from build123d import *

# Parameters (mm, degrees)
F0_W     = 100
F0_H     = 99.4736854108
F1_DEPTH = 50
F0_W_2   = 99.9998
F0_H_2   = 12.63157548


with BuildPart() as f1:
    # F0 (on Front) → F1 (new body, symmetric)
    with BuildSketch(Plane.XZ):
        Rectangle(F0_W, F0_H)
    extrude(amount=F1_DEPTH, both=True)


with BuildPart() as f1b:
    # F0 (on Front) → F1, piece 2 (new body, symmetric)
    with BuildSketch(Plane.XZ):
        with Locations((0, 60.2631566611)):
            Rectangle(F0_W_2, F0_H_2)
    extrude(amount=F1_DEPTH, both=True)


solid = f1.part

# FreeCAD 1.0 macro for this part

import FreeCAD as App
import Part
import Sketcher

V = App.Vector
Q = App.Units.Quantity

doc = App.newDocument("Part")
body = doc.addObject("PartDesign::Body", "Body")

sketch1 = body.newObject("Sketcher::SketchObject", "Sketch")
sketch1.AttachmentSupport = (doc.getObject("XZ_Plane"), [""])
sketch1.MapMode = "FlatFace"
sketch1.addGeometry(Part.LineSegment(V(-50, 50, 0), V(-50, -50, 0)), False)
sketch1.addGeometry(Part.LineSegment(V(-50, -50, 0), V(50, -50, 0)), False)
sketch1.addGeometry(Part.LineSegment(V(50, -50, 0), V(50, 50, 0)), False)
sketch1.addGeometry(Part.LineSegment(V(50, 50, 0), V(-50, 50, 0)), False)
sketch1.addConstraint(Sketcher.Constraint("Coincident", 0, 2, 1, 1))
sketch1.addConstraint(Sketcher.Constraint("Coincident", 1, 2, 2, 1))
sketch1.addConstraint(Sketcher.Constraint("Coincident", 2, 2, 3, 1))
sketch1.addConstraint(Sketcher.Constraint("Coincident", 3, 2, 0, 1))
sketch1.addConstraint(Sketcher.Constraint("Vertical", 0))
sketch1.addConstraint(Sketcher.Constraint("Horizontal", 1))
sketch1.addConstraint(Sketcher.Constraint("Vertical", 2))
sketch1.addConstraint(Sketcher.Constraint("Horizontal", 3))
sketch1.addConstraint(Sketcher.Constraint("Symmetric", 0, 2, 2, 2, -1, 1))
sketch1.addConstraint(Sketcher.Constraint("DistanceX", 1, 1, 1, 2, Q("100 mm")))
sketch1.addConstraint(Sketcher.Constraint("DistanceY", 0, 2, 0, 1, Q("99.473685 mm")))
pad1 = body.newObject("PartDesign::Pad", "Pad")
pad1.Profile = sketch1
pad1.Length = 100
pad1.Midplane = True
body2 = doc.addObject("PartDesign::Body", "Body001")

sketch2 = body2.newObject("Sketcher::SketchObject", "Sketch001")
sketch2.AttachmentSupport = (doc.getObject("XZ_Plane001"), [""])
sketch2.MapMode = "FlatFace"
sketch2.addGeometry(Part.LineSegment(V(-50, 67, 0), V(-50, 54, 0)), False)
sketch2.addGeometry(Part.LineSegment(V(-50, 54, 0), V(50, 54, 0)), False)
sketch2.addGeometry(Part.LineSegment(V(50, 54, 0), V(50, 67, 0)), False)
sketch2.addGeometry(Part.LineSegment(V(50, 67, 0), V(-50, 67, 0)), False)
sketch2.addConstraint(Sketcher.Constraint("Coincident", 0, 2, 1, 1))
sketch2.addConstraint(Sketcher.Constraint("Coincident", 1, 2, 2, 1))
sketch2.addConstraint(Sketcher.Constraint("Coincident", 2, 2, 3, 1))
sketch2.addConstraint(Sketcher.Constraint("Coincident", 3, 2, 0, 1))
sketch2.addConstraint(Sketcher.Constraint("Vertical", 0))
sketch2.addConstraint(Sketcher.Constraint("Horizontal", 1))
sketch2.addConstraint(Sketcher.Constraint("Vertical", 2))
sketch2.addConstraint(Sketcher.Constraint("Horizontal", 3))
sketch2.addConstraint(Sketcher.Constraint("DistanceX", 1, 1, 1, 2, Q("99.9998 mm")))
sketch2.addConstraint(Sketcher.Constraint("DistanceX", 0, 2, -1, 1, Q("49.9999 mm")))
sketch2.addConstraint(Sketcher.Constraint("DistanceY", 0, 2, 0, 1, Q("12.631575 mm")))
sketch2.addConstraint(Sketcher.Constraint("DistanceY", -1, 1, 0, 2, Q("53.947369 mm")))
pad2 = body2.newObject("PartDesign::Pad", "Pad001")
pad2.Profile = sketch2
pad2.Length = 100
pad2.Midplane = True
body2.Visibility = False

doc.recompute()
